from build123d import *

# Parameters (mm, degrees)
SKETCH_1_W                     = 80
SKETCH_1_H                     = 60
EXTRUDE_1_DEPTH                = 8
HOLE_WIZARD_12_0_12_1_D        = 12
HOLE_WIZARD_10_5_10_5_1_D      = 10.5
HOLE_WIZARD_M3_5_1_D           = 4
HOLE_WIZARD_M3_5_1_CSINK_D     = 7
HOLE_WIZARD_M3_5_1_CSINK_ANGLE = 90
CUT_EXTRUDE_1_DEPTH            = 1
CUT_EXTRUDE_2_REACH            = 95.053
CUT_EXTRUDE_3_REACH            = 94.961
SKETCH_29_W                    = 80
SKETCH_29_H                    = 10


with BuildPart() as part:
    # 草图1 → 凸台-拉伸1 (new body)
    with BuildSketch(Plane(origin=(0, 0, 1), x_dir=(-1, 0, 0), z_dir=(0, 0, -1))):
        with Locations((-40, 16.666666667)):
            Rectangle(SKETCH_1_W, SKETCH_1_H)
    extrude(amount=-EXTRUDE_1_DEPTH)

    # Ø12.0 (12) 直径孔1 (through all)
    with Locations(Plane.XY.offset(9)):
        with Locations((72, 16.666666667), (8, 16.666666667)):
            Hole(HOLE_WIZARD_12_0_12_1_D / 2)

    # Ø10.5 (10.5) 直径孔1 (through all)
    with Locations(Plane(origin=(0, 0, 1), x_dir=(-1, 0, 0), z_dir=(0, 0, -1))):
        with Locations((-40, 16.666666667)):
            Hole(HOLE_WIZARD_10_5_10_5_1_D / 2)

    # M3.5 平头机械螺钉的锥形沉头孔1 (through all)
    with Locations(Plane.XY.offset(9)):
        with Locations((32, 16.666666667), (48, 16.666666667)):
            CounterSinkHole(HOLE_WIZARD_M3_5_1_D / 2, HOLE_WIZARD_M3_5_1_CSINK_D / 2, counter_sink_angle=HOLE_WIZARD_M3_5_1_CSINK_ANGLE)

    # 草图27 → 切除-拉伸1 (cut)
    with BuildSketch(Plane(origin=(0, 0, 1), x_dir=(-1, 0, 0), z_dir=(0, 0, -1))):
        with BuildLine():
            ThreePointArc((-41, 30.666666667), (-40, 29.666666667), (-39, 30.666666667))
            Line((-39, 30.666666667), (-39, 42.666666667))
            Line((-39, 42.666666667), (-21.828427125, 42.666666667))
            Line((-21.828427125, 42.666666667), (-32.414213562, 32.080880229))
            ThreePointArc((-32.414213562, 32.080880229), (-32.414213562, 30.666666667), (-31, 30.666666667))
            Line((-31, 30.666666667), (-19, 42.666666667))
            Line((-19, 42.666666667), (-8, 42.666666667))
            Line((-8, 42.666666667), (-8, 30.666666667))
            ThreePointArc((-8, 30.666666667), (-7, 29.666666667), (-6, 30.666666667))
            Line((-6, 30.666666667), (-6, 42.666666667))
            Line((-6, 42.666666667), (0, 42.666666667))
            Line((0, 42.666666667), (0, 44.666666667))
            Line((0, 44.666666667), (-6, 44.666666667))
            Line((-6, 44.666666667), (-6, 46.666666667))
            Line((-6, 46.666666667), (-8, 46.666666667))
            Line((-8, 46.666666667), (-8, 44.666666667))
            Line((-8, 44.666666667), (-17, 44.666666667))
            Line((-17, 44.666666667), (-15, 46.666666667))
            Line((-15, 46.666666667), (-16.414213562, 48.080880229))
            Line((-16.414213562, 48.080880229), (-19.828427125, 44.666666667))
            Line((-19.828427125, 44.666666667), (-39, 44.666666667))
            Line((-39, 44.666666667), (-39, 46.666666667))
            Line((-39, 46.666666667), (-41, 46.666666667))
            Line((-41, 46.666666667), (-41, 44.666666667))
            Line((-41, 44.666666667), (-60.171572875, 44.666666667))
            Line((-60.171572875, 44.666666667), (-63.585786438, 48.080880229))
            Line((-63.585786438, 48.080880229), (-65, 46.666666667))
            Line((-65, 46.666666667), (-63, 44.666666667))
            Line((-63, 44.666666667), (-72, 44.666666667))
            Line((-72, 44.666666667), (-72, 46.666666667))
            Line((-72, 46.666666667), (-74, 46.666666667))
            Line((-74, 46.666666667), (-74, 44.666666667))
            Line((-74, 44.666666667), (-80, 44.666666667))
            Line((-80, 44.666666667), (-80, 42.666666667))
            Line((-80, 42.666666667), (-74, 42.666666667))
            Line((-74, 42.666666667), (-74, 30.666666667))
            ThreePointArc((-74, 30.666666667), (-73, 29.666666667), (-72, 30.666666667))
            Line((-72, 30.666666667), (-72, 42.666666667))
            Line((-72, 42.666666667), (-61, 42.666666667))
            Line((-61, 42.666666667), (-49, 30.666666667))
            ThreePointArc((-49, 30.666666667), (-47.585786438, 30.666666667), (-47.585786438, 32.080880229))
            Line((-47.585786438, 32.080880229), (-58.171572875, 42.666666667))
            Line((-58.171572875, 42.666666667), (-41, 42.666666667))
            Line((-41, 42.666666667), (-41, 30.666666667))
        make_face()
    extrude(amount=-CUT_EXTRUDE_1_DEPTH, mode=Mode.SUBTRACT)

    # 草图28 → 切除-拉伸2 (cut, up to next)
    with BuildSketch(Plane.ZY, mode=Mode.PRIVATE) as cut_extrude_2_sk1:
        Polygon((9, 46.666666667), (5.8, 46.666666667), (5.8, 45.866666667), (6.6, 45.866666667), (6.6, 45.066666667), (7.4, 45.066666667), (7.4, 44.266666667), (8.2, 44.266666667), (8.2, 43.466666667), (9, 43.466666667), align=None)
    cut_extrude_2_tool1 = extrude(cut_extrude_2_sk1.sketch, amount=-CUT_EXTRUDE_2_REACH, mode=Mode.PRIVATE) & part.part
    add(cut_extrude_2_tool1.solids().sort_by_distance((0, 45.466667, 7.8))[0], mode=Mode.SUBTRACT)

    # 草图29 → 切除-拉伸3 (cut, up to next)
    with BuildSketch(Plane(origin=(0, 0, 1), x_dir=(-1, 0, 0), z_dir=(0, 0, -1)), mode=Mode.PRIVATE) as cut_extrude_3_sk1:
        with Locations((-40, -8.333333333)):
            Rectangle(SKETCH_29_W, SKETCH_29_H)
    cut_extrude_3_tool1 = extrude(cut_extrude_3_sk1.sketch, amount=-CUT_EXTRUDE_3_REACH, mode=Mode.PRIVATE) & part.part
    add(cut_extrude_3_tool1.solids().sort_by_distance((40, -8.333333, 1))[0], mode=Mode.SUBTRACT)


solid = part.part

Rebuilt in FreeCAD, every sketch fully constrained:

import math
import FreeCAD as App
import Part
import Sketcher


def add_polygon(sketch, points):
    """Adds a closed chain of lines whose ends are joined by coincident constraints."""
    first, n = sketch.GeometryCount, len(points)
    for a, b in zip(points, points[1:] + points[:1]):
        sketch.addGeometry(Part.LineSegment(App.Vector(*a, 0), App.Vector(*b, 0)), False)
    for i in range(n):
        sketch.addConstraint(Sketcher.Constraint("Coincident", first + i, 2, first + (i + 1) % n, 1))

doc = App.newDocument("Part")
params = doc.addObject("Spreadsheet::Sheet", "Params")
for row, (alias, value) in enumerate([
    ("sketch1_width", "80 mm"),
    ("sketch1_height", "60 mm"),
    ("pad1_length", "8 mm"),
    ("sketch2_diameter", "12 mm"),
    ("hole_diameter", "12 mm"),
    ("sketch3_diameter", "10.5 mm"),
    ("hole2_diameter", "10.5 mm"),
    ("sketch4_diameter", "4 mm"),
    ("hole3_diameter", "4 mm"),
    ("hole3_csink_diameter", "7 mm"),
    ("sketch5_radius", "1 mm"),
    ("sketch5_width", "11 mm"),
    ("sketch5_width2", "6 mm"),
    ("sketch5_width3", "9 mm"),
    ("sketch5_height", "12 mm"),
    ("pocket1_length", "1 mm"),
    ("sketch6_width", "0.8 mm"),
    ("sketch7_width", "80 mm"),
    ("sketch7_height", "10 mm"),
], start=1):
    params.set(f"A{row}", alias)
    params.set(f"B{row}", "=" + value)
    params.setAlias(f"B{row}", alias)

body = doc.addObject("PartDesign::Body", "Body")

# Sketch on XY plane
sketch1 = body.newObject("Sketcher::SketchObject", "Sketch")
sketch1.AttachmentSupport = (doc.getObject("XY_Plane"), [""])
sketch1.MapMode = "FlatFace"
sketch1.AttachmentOffset = App.Placement(App.Vector(0, 0, 1), App.Rotation())
add_polygon(sketch1, [(80, 47), (80, -13), (0, -13), (0, 47)])  # lines 0-3
sketch1.addConstraint([
    Sketcher.Constraint("Vertical", 0),
    Sketcher.Constraint("Horizontal", 1),
    Sketcher.Constraint("Vertical", 2),
    Sketcher.Constraint("Horizontal", 3),
    Sketcher.Constraint("PointOnObject", 1, 2, -2),
    Sketcher.Constraint("DistanceX", 1, 2, 1, 1, 80.0),
    Sketcher.Constraint("DistanceY", 0, 2, 0, 1, 60.0),
    Sketcher.Constraint("DistanceY", 0, 2, -1, 1, 13.333333),
])
sketch1.setExpression("Constraints[9]", "Params.sketch1_width")
sketch1.setExpression("Constraints[10]", "Params.sketch1_height")
pad1 = body.newObject("PartDesign::Pad", "Pad")
pad1.Profile = sketch1
pad1.setExpression("Length", "Params.pad1_length")

# Sketch on XY plane
sketch2 = body.newObject("Sketcher::SketchObject", "Sketch001")
sketch2.AttachmentSupport = (doc.getObject("XY_Plane"), [""])
sketch2.MapMode = "FlatFace"
sketch2.AttachmentOffset = App.Placement(App.Vector(0, 0, 9), App.Rotation())
sketch2.addGeometry([
    Part.Circle(App.Vector(72, 17, 0), App.Vector(0, 0, 1), 6),
    Part.Circle(App.Vector(8, 17, 0), App.Vector(0, 0, 1), 6),
], False)
sketch2.addConstraint([
    Sketcher.Constraint("Equal", 0, 1),
    Sketcher.Constraint("Horizontal", 0, 3, 1, 3),
    Sketcher.Constraint("Diameter", 0, 12.0),
    Sketcher.Constraint("DistanceX", -1, 1, 0, 3, 72.0),
    Sketcher.Constraint("DistanceX", -1, 1, 1, 3, 8.0),
    Sketcher.Constraint("DistanceY", -1, 1, 0, 3, 16.666667),
])
sketch2.setExpression("Constraints[2]", "Params.sketch2_diameter")
doc.recompute()
hole = body.newObject("PartDesign::Hole", "Hole")
hole.Profile = sketch2
hole.ThreadType = "None"
hole.setExpression("Diameter", "Params.hole_diameter")
hole.DepthType = "ThroughAll"

# Sketch on XY plane
sketch3 = body.newObject("Sketcher::SketchObject", "Sketch002")
sketch3.AttachmentSupport = (doc.getObject("XY_Plane"), [""])
sketch3.MapMode = "FlatFace"
sketch3.AttachmentOffset = App.Placement(App.Vector(0, 0, 1), App.Rotation())
sketch3.addGeometry(Part.Circle(App.Vector(40, 17, 0), App.Vector(0, 0, 1), 5), False)
sketch3.addConstraint([
    Sketcher.Constraint("Diameter", 0, 10.5),
    Sketcher.Constraint("DistanceX", -1, 1, 0, 3, 40.0),
    Sketcher.Constraint("DistanceY", -1, 1, 0, 3, 16.666667),
])
sketch3.setExpression("Constraints[0]", "Params.sketch3_diameter")
doc.recompute()
hole2 = body.newObject("PartDesign::Hole", "Hole001")
hole2.Profile = sketch3
hole2.ThreadType = "None"
hole2.setExpression("Diameter", "Params.hole2_diameter")
hole2.DepthType = "ThroughAll"
hole2.Reversed = True

# Sketch on XY plane
sketch4 = body.newObject("Sketcher::SketchObject", "Sketch003")
sketch4.AttachmentSupport = (doc.getObject("XY_Plane"), [""])
sketch4.MapMode = "FlatFace"
sketch4.AttachmentOffset = App.Placement(App.Vector(0, 0, 9), App.Rotation())
sketch4.addGeometry([
    Part.Circle(App.Vector(32, 16.7, 0), App.Vector(0, 0, 1), 2),
    Part.Circle(App.Vector(48, 16.7, 0), App.Vector(0, 0, 1), 2),
], False)
sketch4.addConstraint([
    Sketcher.Constraint("Equal", 0, 1),
    Sketcher.Constraint("Horizontal", 0, 3, 1, 3),
    Sketcher.Constraint("Diameter", 0, 4.0),
    Sketcher.Constraint("DistanceX", -1, 1, 0, 3, 32.0),
    Sketcher.Constraint("DistanceX", -1, 1, 1, 3, 48.0),
    Sketcher.Constraint("DistanceY", -1, 1, 0, 3, 16.666667),
])
sketch4.setExpression("Constraints[2]", "Params.sketch4_diameter")
doc.recompute()
hole3 = body.newObject("PartDesign::Hole", "Hole002")
hole3.Profile = sketch4
hole3.ThreadType = "None"
hole3.setExpression("Diameter", "Params.hole3_diameter")
hole3.DepthType = "ThroughAll"
hole3.HoleCutType = "Countersink"
hole3.setExpression("HoleCutDiameter", "Params.hole3_csink_diameter")
hole3.HoleCutCountersinkAngle = 90

# Sketch on XY plane
sketch5 = body.newObject("Sketcher::SketchObject", "Sketch004")
sketch5.AttachmentSupport = (doc.getObject("XY_Plane"), [""])
sketch5.MapMode = "FlatFace"
sketch5.AttachmentOffset = App.Placement(App.Vector(0, 0, 1), App.Rotation())
sketch5.addGeometry([
    Part.ArcOfCircle(Part.Circle(App.Vector(40, 30.7, 0), App.Vector(0, 0, 1), 1), math.radians(180), math.radians(360)),  # 0
    Part.LineSegment(App.Vector(39, 30.7, 0), App.Vector(39, 42.7, 0)),  # 1
    Part.LineSegment(App.Vector(39, 42.7, 0), App.Vector(21.8, 42.7, 0)),  # 2
    Part.LineSegment(App.Vector(21.8, 42.7, 0), App.Vector(32.4, 32.1, 0)),  # 3
    Part.ArcOfCircle(Part.Circle(App.Vector(31.7, 31.4, 0), App.Vector(0, 0, 1), 1), math.radians(-135), math.radians(45)),  # 4
    Part.LineSegment(App.Vector(31, 30.7, 0), App.Vector(19, 42.7, 0)),  # 5
    Part.LineSegment(App.Vector(19, 42.7, 0), App.Vector(8, 42.7, 0)),  # 6
    Part.LineSegment(App.Vector(8, 42.7, 0), App.Vector(8, 30.7, 0)),  # 7
    Part.ArcOfCircle(Part.Circle(App.Vector(7, 30.7, 0), App.Vector(0, 0, 1), 1), math.radians(180), math.radians(360)),  # 8
    Part.LineSegment(App.Vector(6, 30.7, 0), App.Vector(6, 42.7, 0)),  # 9
    Part.LineSegment(App.Vector(6, 42.7, 0), App.Vector(0, 42.7, 0)),  # 10
    Part.LineSegment(App.Vector(0, 42.7, 0), App.Vector(0, 44.7, 0)),  # 11
    Part.LineSegment(App.Vector(0, 44.7, 0), App.Vector(6, 44.7, 0)),  # 12
    Part.LineSegment(App.Vector(6, 44.7, 0), App.Vector(6, 46.7, 0)),  # 13
    Part.LineSegment(App.Vector(6, 46.7, 0), App.Vector(8, 46.7, 0)),  # 14
    Part.LineSegment(App.Vector(8, 46.7, 0), App.Vector(8, 44.7, 0)),  # 15
    Part.LineSegment(App.Vector(8, 44.7, 0), App.Vector(17, 44.7, 0)),  # 16
    Part.LineSegment(App.Vector(17, 44.7, 0), App.Vector(15, 46.7, 0)),  # 17
    Part.LineSegment(App.Vector(15, 46.7, 0), App.Vector(16.4, 48.1, 0)),  # 18
    Part.LineSegment(App.Vector(16.4, 48.1, 0), App.Vector(19.8, 44.7, 0)),  # 19
    Part.LineSegment(App.Vector(19.8, 44.7, 0), App.Vector(39, 44.7, 0)),  # 20
    Part.LineSegment(App.Vector(39, 44.7, 0), App.Vector(39, 46.7, 0)),  # 21
    Part.LineSegment(App.Vector(39, 46.7, 0), App.Vector(41, 46.7, 0)),  # 22
    Part.LineSegment(App.Vector(41, 46.7, 0), App.Vector(41, 44.7, 0)),  # 23
    Part.LineSegment(App.Vector(41, 44.7, 0), App.Vector(60.2, 44.7, 0)),  # 24
    Part.LineSegment(App.Vector(60.2, 44.7, 0), App.Vector(63.6, 48.1, 0)),  # 25
    Part.LineSegment(App.Vector(63.6, 48.1, 0), App.Vector(65, 46.7, 0)),  # 26
    Part.LineSegment(App.Vector(65, 46.7, 0), App.Vector(63, 44.7, 0)),  # 27
    Part.LineSegment(App.Vector(63, 44.7, 0), App.Vector(72, 44.7, 0)),  # 28
    Part.LineSegment(App.Vector(72, 44.7, 0), App.Vector(72, 46.7, 0)),  # 29
    Part.LineSegment(App.Vector(72, 46.7, 0), App.Vector(74, 46.7, 0)),  # 30
    Part.LineSegment(App.Vector(74, 46.7, 0), App.Vector(74, 44.7, 0)),  # 31
    Part.LineSegment(App.Vector(74, 44.7, 0), App.Vector(80, 44.7, 0)),  # 32
    Part.LineSegment(App.Vector(80, 44.7, 0), App.Vector(80, 42.7, 0)),  # 33
    Part.LineSegment(App.Vector(80, 42.7, 0), App.Vector(74, 42.7, 0)),  # 34
    Part.LineSegment(App.Vector(74, 42.7, 0), App.Vector(74, 30.7, 0)),  # 35
    Part.ArcOfCircle(Part.Circle(App.Vector(73, 30.7, 0), App.Vector(0, 0, 1), 1), math.radians(180), math.radians(360)),  # 36
    Part.LineSegment(App.Vector(72, 30.7, 0), App.Vector(72, 42.7, 0)),  # 37
    Part.LineSegment(App.Vector(72, 42.7, 0), App.Vector(61, 42.7, 0)),  # 38
    Part.LineSegment(App.Vector(61, 42.7, 0), App.Vector(49, 30.7, 0)),  # 39
    Part.ArcOfCircle(Part.Circle(App.Vector(48.3, 31.4, 0), App.Vector(0, 0, 1), 1), math.radians(135), math.radians(315)),  # 40
    Part.LineSegment(App.Vector(47.6, 32.1, 0), App.Vector(58.2, 42.7, 0)),  # 41
    Part.LineSegment(App.Vector(58.2, 42.7, 0), App.Vector(41, 42.7, 0)),  # 42
    Part.LineSegment(App.Vector(41, 42.7, 0), App.Vector(41, 30.7, 0)),  # 43
], False)
sketch5.addConstraint([
    Sketcher.Constraint("Tangent", 0, 1, 1, 1),
    Sketcher.Constraint("Coincident", 1, 2, 2, 1),
    Sketcher.Constraint("Coincident", 2, 2, 3, 1),
    Sketcher.Constraint("Tangent", 3, 2, 4, 2),
    Sketcher.Constraint("Tangent", 4, 1, 5, 1),
    Sketcher.Constraint("Coincident", 5, 2, 6, 1),
    Sketcher.Constraint("Coincident", 6, 2, 7, 1),
    Sketcher.Constraint("Tangent", 7, 2, 8, 2),
    Sketcher.Constraint("Tangent", 8, 1, 9, 1),
    Sketcher.Constraint("Coincident", 9, 2, 10, 1),
    Sketcher.Constraint("Coincident", 10, 2, 11, 1),
    Sketcher.Constraint("Coincident", 11, 2, 12, 1),
    Sketcher.Constraint("Coincident", 12, 2, 13, 1),
    Sketcher.Constraint("Coincident", 13, 2, 14, 1),
    Sketcher.Constraint("Coincident", 14, 2, 15, 1),
    Sketcher.Constraint("Coincident", 15, 2, 16, 1),
    Sketcher.Constraint("Coincident", 16, 2, 17, 1),
    Sketcher.Constraint("Coincident", 17, 2, 18, 1),
    Sketcher.Constraint("Coincident", 18, 2, 19, 1),
    Sketcher.Constraint("Coincident", 19, 2, 20, 1),
    Sketcher.Constraint("Coincident", 20, 2, 21, 1),
    Sketcher.Constraint("Coincident", 21, 2, 22, 1),
    Sketcher.Constraint("Coincident", 22, 2, 23, 1),
    Sketcher.Constraint("Coincident", 23, 2, 24, 1),
    Sketcher.Constraint("Coincident", 24, 2, 25, 1),
    Sketcher.Constraint("Coincident", 25, 2, 26, 1),
    Sketcher.Constraint("Coincident", 26, 2, 27, 1),
    Sketcher.Constraint("Coincident", 27, 2, 28, 1),
    Sketcher.Constraint("Coincident", 28, 2, 29, 1),
    Sketcher.Constraint("Coincident", 29, 2, 30, 1),
    Sketcher.Constraint("Coincident", 30, 2, 31, 1),
    Sketcher.Constraint("Coincident", 31, 2, 32, 1),
    Sketcher.Constraint("Coincident", 32, 2, 33, 1),
    Sketcher.Constraint("Coincident", 33, 2, 34, 1),
    Sketcher.Constraint("Coincident", 34, 2, 35, 1),
    Sketcher.Constraint("Tangent", 35, 2, 36, 2),
    Sketcher.Constraint("Tangent", 36, 1, 37, 1),
    Sketcher.Constraint("Coincident", 37, 2, 38, 1),
    Sketcher.Constraint("Coincident", 38, 2, 39, 1),
    Sketcher.Constraint("Tangent", 39, 2, 40, 2),
    Sketcher.Constraint("Tangent", 40, 1, 41, 1),
    Sketcher.Constraint("Coincident", 41, 2, 42, 1),
    Sketcher.Constraint("Coincident", 42, 2, 43, 1),
    Sketcher.Constraint("Tangent", 43, 2, 0, 2),
    Sketcher.Constraint("Vertical", 1),
    Sketcher.Constraint("Horizontal", 2),
    Sketcher.Constraint("Horizontal", 6),
    Sketcher.Constraint("Vertical", 7),
    Sketcher.Constraint("Vertical", 9),
    Sketcher.Constraint("Horizontal", 10),
    Sketcher.Constraint("Vertical", 11),
    Sketcher.Constraint("Horizontal", 12),
    Sketcher.Constraint("Vertical", 13),
    Sketcher.Constraint("Horizontal", 14),
    Sketcher.Constraint("Vertical", 15),
    Sketcher.Constraint("Horizontal", 16),
    Sketcher.Constraint("Horizontal", 20),
    Sketcher.Constraint("Vertical", 21),
    Sketcher.Constraint("Horizontal", 22),
    Sketcher.Constraint("Vertical", 23),
    Sketcher.Constraint("Horizontal", 24),
    Sketcher.Constraint("Horizontal", 28),
    Sketcher.Constraint("Vertical", 29),
    Sketcher.Constraint("Horizontal", 30),
    Sketcher.Constraint("Vertical", 31),
    Sketcher.Constraint("Horizontal", 32),
    Sketcher.Constraint("Vertical", 33),
    Sketcher.Constraint("Horizontal", 34),
    Sketcher.Constraint("Vertical", 35),
    Sketcher.Constraint("Vertical", 37),
    Sketcher.Constraint("Horizontal", 38),
    Sketcher.Constraint("Horizontal", 42),
    Sketcher.Constraint("Vertical", 43),
    Sketcher.Constraint("Equal", 0, 4),
    Sketcher.Constraint("Equal", 4, 8),
    Sketcher.Constraint("Equal", 8, 36),
    Sketcher.Constraint("Equal", 36, 40),
    Sketcher.Constraint("PointOnObject", 10, 2, -2),
    Sketcher.Constraint("Parallel", 3, 5),
    Sketcher.Constraint("Parallel", 5, 17),
    Sketcher.Constraint("Perpendicular", 17, 18),
    Sketcher.Constraint("Perpendicular", 18, 19),
    Sketcher.Constraint("Perpendicular", 19, 25),
    Sketcher.Constraint("Perpendicular", 25, 26),
    Sketcher.Constraint("Perpendicular", 26, 27),
    Sketcher.Constraint("Parallel", 27, 39),
    Sketcher.Constraint("Parallel", 39, 41),
    Sketcher.Constraint("Horizontal", 0, 3, 8, 3),
    Sketcher.Constraint("Horizontal", 8, 3, 36, 3),
    Sketcher.Constraint("Horizontal", 4, 3, 40, 3),
    Sketcher.Constraint("Horizontal", 0, 1, 4, 1),
    Sketcher.Constraint("Horizontal", 2, 2, 5, 2),
    Sketcher.Constraint("Horizontal", 6, 2, 9, 2),
    Sketcher.Constraint("Horizontal", 12, 2, 15, 2),
    Sketcher.Constraint("Horizontal", 14, 2, 17, 2),
    Sketcher.Constraint("Horizontal", 16, 2, 19, 2),
    Sketcher.Constraint("Horizontal", 17, 2, 21, 2),
    Sketcher.Constraint("Horizontal", 20, 2, 23, 2),
    Sketcher.Constraint("Horizontal", 18, 2, 25, 2),
    Sketcher.Constraint("Horizontal", 22, 2, 26, 2),
    Sketcher.Constraint("Horizontal", 24, 2, 27, 2),
    Sketcher.Constraint("Horizontal", 26, 2, 29, 2),
    Sketcher.Constraint("Horizontal", 28, 2, 31, 2),
    Sketcher.Constraint("Horizontal", 10, 2, 33, 2),
    Sketcher.Constraint("Horizontal", 34, 2, 37, 2),
    Sketcher.Constraint("Horizontal", 36, 1, 39, 2),
    Sketcher.Constraint("Horizontal", 38, 2, 41, 2),
    Sketcher.Constraint("Vertical", 9, 2, 12, 2),
    Sketcher.Constraint("Vertical", 7, 2, 14, 2),
    Sketcher.Constraint("Vertical", 1, 2, 20, 2),
    Sketcher.Constraint("Vertical", 31, 2, 34, 2),
    Sketcher.Constraint("Vertical", 29, 2, 36, 1),
    Sketcher.Constraint("Vertical", 23, 2, 42, 2),
    Sketcher.Constraint("Equal", 20, 24),
    Sketcher.Constraint("Equal", 16, 28),
    Sketcher.Constraint("Equal", 12, 32),
    Sketcher.Constraint("Equal", 6, 38),
    Sketcher.Constraint("Equal", 30, 11),
    Sketcher.Constraint("Equal", 11, 13),
    Sketcher.Constraint("Radius", 0, 1.0),
    Sketcher.Constraint("DistanceX", 6, 2, 6, 1, 11.0),
    Sketcher.Constraint("DistanceX", 10, 2, 10, 1, 6.0),
    Sketcher.Constraint("DistanceX", 16, 1, 16, 2, 9.0),
    Sketcher.Constraint("DistanceY", 1, 1, 1, 2, 12.0),
    Sketcher.Constraint("Distance", 18, 2.0),
    Sketcher.Constraint("DistanceX", -1, 1, 0, 3, 40.0),
    Sketcher.Constraint("DistanceY", -1, 1, 3, 2, 32.08088),
])
sketch5.setExpression("Constraints[119]", "Params.sketch5_radius")
sketch5.setExpression("Constraints[120]", "Params.sketch5_width")
sketch5.setExpression("Constraints[121]", "Params.sketch5_width2")
sketch5.setExpression("Constraints[122]", "Params.sketch5_width3")
sketch5.setExpression("Constraints[123]", "Params.sketch5_height")
pocket1 = body.newObject("PartDesign::Pocket", "Pocket")
pocket1.Profile = sketch5
pocket1.setExpression("Length", "Params.pocket1_length")
pocket1.Reversed = True

# Sketch on YZ plane
sketch6 = body.newObject("Sketcher::SketchObject", "Sketch005")
sketch6.AttachmentSupport = (doc.getObject("YZ_Plane"), [""])
sketch6.MapMode = "FlatFace"
add_polygon(sketch6, [(46.7, 9), (46.7, 5.8), (45.9, 5.8), (45.9, 6.6), (45.1, 6.6), (45.1, 7.4), (44.3, 7.4), (44.3, 8.2), (43.5, 8.2), (43.5, 9)])  # lines 0-9
sketch6.addConstraint([
    Sketcher.Constraint("Vertical", 0),
    Sketcher.Constraint("Horizontal", 1),
    Sketcher.Constraint("Vertical", 2),
    Sketcher.Constraint("Horizontal", 3),
    Sketcher.Constraint("Vertical", 4),
    Sketcher.Constraint("Horizontal", 5),
    Sketcher.Constraint("Vertical", 6),
    Sketcher.Constraint("Horizontal", 7),
    Sketcher.Constraint("Vertical", 8),
    Sketcher.Constraint("Horizontal", 9),
    Sketcher.Constraint("Equal", 1, 3),
    Sketcher.Constraint("Equal", 3, 5),
    Sketcher.Constraint("Equal", 5, 7),
    Sketcher.Constraint("Equal", 9, 0),
    Sketcher.Constraint("Equal", 7, 2),
    Sketcher.Constraint("Equal", 2, 4),
    Sketcher.Constraint("Equal", 4, 6),
    Sketcher.Constraint("DistanceX", 1, 2, 1, 1, 0.8),
    Sketcher.Constraint("DistanceY", -1, 1, 8, 2, 9.0),
    Sketcher.Constraint("DistanceX", -1, 1, 0, 2, 46.666667),
])
sketch6.setExpression("Constraints[27]", "Params.sketch6_width")
pocket2 = body.newObject("PartDesign::Pocket", "Pocket001")
pocket2.Profile = sketch6
pocket2.Type = "UpToFirst"
pocket2.Reversed = True

# Sketch on XY plane
sketch7 = body.newObject("Sketcher::SketchObject", "Sketch006")
sketch7.AttachmentSupport = (doc.getObject("XY_Plane"), [""])
sketch7.MapMode = "FlatFace"
sketch7.AttachmentOffset = App.Placement(App.Vector(0, 0, 1), App.Rotation())
add_polygon(sketch7, [(80, -3), (80, -13), (0, -13), (0, -3)])  # lines 0-3
sketch7.addConstraint([
    Sketcher.Constraint("Vertical", 0),
    Sketcher.Constraint("Horizontal", 1),
    Sketcher.Constraint("Vertical", 2),
    Sketcher.Constraint("Horizontal", 3),
    Sketcher.Constraint("PointOnObject", 1, 2, -2),
    Sketcher.Constraint("DistanceX", 1, 2, 1, 1, 80.0),
    Sketcher.Constraint("DistanceY", 0, 2, 0, 1, 10.0),
    Sketcher.Constraint("DistanceY", 0, 2, -1, 1, 13.333333),
])
sketch7.setExpression("Constraints[9]", "Params.sketch7_width")
sketch7.setExpression("Constraints[10]", "Params.sketch7_height")
pocket3 = body.newObject("PartDesign::Pocket", "Pocket002")
pocket3.Profile = sketch7
pocket3.Type = "UpToFirst"
pocket3.Reversed = True

doc.recompute()
